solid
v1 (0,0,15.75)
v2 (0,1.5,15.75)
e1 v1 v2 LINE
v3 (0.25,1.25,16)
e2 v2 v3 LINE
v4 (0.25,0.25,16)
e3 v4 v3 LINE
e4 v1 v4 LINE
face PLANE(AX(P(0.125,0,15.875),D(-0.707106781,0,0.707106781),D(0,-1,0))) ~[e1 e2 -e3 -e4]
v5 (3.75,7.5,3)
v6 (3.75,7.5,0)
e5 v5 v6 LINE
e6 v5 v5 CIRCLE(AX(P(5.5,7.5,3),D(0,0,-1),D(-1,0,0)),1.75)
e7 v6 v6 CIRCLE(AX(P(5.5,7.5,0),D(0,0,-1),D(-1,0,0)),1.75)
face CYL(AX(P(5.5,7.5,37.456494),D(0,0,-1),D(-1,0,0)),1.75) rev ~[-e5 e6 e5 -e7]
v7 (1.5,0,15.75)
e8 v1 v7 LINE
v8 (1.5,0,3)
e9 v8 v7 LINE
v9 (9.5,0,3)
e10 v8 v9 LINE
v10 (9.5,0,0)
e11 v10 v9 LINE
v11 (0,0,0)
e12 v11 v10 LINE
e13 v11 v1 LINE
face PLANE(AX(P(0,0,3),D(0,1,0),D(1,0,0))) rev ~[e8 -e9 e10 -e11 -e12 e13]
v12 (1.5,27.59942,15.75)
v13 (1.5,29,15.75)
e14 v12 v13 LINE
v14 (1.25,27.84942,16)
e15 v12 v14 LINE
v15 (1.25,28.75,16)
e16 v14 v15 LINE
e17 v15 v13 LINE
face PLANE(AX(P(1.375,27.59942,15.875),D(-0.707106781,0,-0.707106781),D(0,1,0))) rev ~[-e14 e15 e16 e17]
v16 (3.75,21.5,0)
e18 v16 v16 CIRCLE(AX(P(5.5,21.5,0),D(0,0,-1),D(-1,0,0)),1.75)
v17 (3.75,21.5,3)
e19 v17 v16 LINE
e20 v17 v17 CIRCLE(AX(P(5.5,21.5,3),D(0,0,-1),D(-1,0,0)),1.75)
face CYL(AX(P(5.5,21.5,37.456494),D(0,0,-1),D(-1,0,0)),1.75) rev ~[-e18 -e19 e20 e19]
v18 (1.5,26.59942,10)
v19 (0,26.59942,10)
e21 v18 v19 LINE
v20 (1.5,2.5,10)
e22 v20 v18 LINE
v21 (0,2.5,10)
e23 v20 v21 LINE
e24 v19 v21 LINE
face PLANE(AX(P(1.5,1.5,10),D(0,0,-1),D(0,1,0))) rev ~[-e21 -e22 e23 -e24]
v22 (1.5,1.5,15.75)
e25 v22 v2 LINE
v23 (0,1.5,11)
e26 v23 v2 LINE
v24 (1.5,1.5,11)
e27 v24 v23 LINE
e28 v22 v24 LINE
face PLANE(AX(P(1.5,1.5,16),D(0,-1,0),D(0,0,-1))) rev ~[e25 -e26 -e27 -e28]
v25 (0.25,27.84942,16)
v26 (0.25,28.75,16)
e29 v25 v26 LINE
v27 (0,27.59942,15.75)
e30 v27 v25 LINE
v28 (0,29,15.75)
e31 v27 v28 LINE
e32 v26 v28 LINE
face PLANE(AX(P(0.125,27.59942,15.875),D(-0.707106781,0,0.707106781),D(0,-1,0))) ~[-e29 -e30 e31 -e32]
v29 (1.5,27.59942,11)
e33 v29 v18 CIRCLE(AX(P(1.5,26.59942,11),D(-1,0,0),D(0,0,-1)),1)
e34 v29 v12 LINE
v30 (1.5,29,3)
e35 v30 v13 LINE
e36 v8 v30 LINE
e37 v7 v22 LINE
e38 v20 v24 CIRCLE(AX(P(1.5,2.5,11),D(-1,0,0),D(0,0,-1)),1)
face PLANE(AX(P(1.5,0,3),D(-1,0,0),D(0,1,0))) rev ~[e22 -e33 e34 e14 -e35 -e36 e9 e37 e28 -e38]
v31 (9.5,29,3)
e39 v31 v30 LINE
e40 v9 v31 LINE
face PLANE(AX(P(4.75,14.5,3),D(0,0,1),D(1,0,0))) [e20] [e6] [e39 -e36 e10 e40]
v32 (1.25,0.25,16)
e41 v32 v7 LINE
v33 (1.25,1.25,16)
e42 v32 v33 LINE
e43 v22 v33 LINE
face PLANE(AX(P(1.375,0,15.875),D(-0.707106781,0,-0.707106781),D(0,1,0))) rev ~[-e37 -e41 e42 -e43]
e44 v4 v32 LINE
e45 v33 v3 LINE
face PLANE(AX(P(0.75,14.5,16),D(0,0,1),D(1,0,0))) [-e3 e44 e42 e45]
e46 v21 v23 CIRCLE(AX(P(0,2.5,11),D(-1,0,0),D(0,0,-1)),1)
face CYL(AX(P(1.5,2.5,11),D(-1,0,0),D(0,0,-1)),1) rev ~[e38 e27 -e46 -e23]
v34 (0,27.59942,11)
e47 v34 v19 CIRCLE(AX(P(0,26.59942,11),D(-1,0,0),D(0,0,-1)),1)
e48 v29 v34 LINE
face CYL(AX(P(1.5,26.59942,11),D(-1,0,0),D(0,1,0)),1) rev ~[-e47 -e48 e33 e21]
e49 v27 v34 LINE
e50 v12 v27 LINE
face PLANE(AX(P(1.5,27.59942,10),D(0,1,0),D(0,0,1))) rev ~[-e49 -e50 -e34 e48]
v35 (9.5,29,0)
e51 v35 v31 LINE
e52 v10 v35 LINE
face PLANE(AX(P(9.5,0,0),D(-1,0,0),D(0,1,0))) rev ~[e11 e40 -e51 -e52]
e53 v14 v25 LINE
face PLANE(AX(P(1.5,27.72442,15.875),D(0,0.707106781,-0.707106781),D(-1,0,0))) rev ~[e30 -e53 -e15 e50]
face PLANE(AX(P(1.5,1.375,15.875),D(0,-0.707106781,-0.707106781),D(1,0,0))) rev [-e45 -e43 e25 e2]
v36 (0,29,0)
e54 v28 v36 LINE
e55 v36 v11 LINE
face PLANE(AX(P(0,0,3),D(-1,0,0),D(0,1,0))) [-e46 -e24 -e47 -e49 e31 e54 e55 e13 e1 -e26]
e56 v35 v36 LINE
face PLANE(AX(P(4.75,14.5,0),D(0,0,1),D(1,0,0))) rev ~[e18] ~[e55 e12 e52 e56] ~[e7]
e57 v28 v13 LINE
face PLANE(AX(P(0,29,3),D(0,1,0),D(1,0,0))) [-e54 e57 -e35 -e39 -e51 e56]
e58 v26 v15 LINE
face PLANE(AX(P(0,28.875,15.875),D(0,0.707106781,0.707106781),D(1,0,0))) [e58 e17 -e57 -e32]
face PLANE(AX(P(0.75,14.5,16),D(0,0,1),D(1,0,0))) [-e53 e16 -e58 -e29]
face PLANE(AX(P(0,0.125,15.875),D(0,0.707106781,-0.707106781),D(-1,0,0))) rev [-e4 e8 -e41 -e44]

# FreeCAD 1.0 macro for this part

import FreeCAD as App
import Part
import Sketcher
Q = App.Units.Quantity


def edges_at(feature, points):
    """Names of the edges that pass closest to the given points."""
    edges = feature.Shape.Edges
    near = lambda p: min(range(len(edges)), key=lambda i: edges[i].distToShape(Part.Vertex(*p))[0])
    return sorted({f"Edge{near(p) + 1}" for p in points})


def add_polygon(sketch, points):
    """Adds a closed chain of lines whose ends are joined by coincident constraints."""
    first, n = sketch.GeometryCount, len(points)
    for a, b in zip(points, points[1:] + points[:1]):
        sketch.addGeometry(Part.LineSegment(App.Vector(*a, 0), App.Vector(*b, 0)), False)
    for i in range(n):
        sketch.addConstraint(Sketcher.Constraint("Coincident", first + i, 2, first + (i + 1) % n, 1))

doc = App.newDocument("Part")
body = doc.addObject("PartDesign::Body", "Body")

sketch1 = body.newObject("Sketcher::SketchObject", "Sketch")
sketch1.AttachmentSupport = (doc.getObject("XY_Plane"), [""])
sketch1.MapMode = "FlatFace"
add_polygon(sketch1, [(0, 29), (0, 0), (10, 0), (10, 29)])
sketch1.addConstraint([
    Sketcher.Constraint("Vertical", 0),
    Sketcher.Constraint("Horizontal", 1),
    Sketcher.Constraint("Vertical", 2),
    Sketcher.Constraint("Horizontal", 3),
    Sketcher.Constraint("Coincident", 0, 2, -1, 1),
    Sketcher.Constraint("DistanceY", 0, 2, 0, 1, Q("29 mm")),
    Sketcher.Constraint("DistanceX", 1, 1, 1, 2, Q("9.5 mm")),
])
pad1 = body.newObject("PartDesign::Pad", "Pad")
pad1.Profile = sketch1
pad1.Length = 3

sketch2 = body.newObject("Sketcher::SketchObject", "Sketch001")
sketch2.AttachmentSupport = (doc.getObject("XY_Plane"), [""])
sketch2.MapMode = "FlatFace"
sketch2.AttachmentOffset = App.Placement(App.Vector(0, 0, 3), App.Rotation())
add_polygon(sketch2, [(0, 29), (0, 0), (1.5, 0), (1.5, 29)])
sketch2.addConstraint([
    Sketcher.Constraint("Vertical", 0),
    Sketcher.Constraint("Horizontal", 1),
    Sketcher.Constraint("Vertical", 2),
    Sketcher.Constraint("Horizontal", 3),
    Sketcher.Constraint("Coincident", 0, 2, -1, 1),
    Sketcher.Constraint("DistanceY", 0, 2, 0, 1, Q("29 mm")),
    Sketcher.Constraint("DistanceX", 1, 1, 1, 2, Q("1.5 mm")),
])
pad2 = body.newObject("PartDesign::Pad", "Pad001")
pad2.Profile = sketch2
pad2.Length = 13

sketch3 = body.newObject("Sketcher::SketchObject", "Sketch002")
sketch3.AttachmentSupport = (doc.getObject("XY_Plane"), [""])
sketch3.MapMode = "FlatFace"
sketch3.AttachmentOffset = App.Placement(App.Vector(0, 0, 3), App.Rotation())
sketch3.addGeometry([
    Part.Circle(App.Vector(5.5, 21.5, 0), App.Vector(0, 0, 1), 1.8),
    Part.Circle(App.Vector(5.5, 7.5, 0), App.Vector(0, 0, 1), 1.8),
], False)
sketch3.addConstraint([
    Sketcher.Constraint("Equal", 0, 1),
    Sketcher.Constraint("Vertical", 0, 3, 1, 3),
    Sketcher.Constraint("Diameter", 0, Q("3.5 mm")),
    Sketcher.Constraint("DistanceY", 1, 3, 0, 3, Q("14 mm")),
    Sketcher.Constraint("DistanceX", -1, 1, 0, 3, Q("5.5 mm")),
    Sketcher.Constraint("DistanceY", -1, 1, 0, 3, Q("21.5 mm")),
])
doc.recompute()
hole = body.newObject("PartDesign::Hole", "Hole")
hole.Profile = sketch3
hole.ThreadType = "None"
hole.Diameter = 3.5
hole.DepthType = "ThroughAll"

sketch4 = body.newObject("Sketcher::SketchObject", "Sketch003")
sketch4.AttachmentSupport = (doc.getObject("YZ_Plane"), [""])
sketch4.MapMode = "FlatFace"
sketch4.AttachmentOffset = App.Placement(App.Vector(0, 0, 1.5), App.Rotation())
add_polygon(sketch4, [(2, 16), (2, 10), (28, 10), (28, 16)])
sketch4.addConstraint([
    Sketcher.Constraint("Vertical", 0),
    Sketcher.Constraint("Horizontal", 1),
    Sketcher.Constraint("Vertical", 2),
    Sketcher.Constraint("Horizontal", 3),
    Sketcher.Constraint("DistanceY", 0, 2, 0, 1, Q("6 mm")),
    Sketcher.Constraint("DistanceY", -1, 1, 0, 2, Q("10 mm")),
    Sketcher.Constraint("DistanceX", -1, 1, 0, 2, Q("1.5 mm")),
    Sketcher.Constraint("DistanceX", 1, 1, 1, 2, Q("26.09942 mm")),
])
pocket1 = body.newObject("PartDesign::Pocket", "Pocket")
pocket1.Profile = sketch4
pocket1.Type = "ThroughAll"
doc.recompute()

fillet = body.newObject("PartDesign::Fillet", "Fillet")
fillet.Base = (pocket1, edges_at(pocket1, [(0.75, 27.599, 10), (0.75, 1.5, 10)]))
fillet.Radius = 1
doc.recompute()

chamfer = body.newObject("PartDesign::Chamfer", "Chamfer")
chamfer.Base = (fillet, edges_at(fillet, [
    (0.75, 27.599, 16),
    (1.5, 28.3, 16),
    (0.75, 29, 16),
    (0, 28.3, 16),
    (0.75, 1.5, 16),
    (1.5, 0.75, 16),
    (0.75, 0, 16),
    (0, 0.75, 16),
]))
chamfer.Size = 0.25

doc.recompute()
